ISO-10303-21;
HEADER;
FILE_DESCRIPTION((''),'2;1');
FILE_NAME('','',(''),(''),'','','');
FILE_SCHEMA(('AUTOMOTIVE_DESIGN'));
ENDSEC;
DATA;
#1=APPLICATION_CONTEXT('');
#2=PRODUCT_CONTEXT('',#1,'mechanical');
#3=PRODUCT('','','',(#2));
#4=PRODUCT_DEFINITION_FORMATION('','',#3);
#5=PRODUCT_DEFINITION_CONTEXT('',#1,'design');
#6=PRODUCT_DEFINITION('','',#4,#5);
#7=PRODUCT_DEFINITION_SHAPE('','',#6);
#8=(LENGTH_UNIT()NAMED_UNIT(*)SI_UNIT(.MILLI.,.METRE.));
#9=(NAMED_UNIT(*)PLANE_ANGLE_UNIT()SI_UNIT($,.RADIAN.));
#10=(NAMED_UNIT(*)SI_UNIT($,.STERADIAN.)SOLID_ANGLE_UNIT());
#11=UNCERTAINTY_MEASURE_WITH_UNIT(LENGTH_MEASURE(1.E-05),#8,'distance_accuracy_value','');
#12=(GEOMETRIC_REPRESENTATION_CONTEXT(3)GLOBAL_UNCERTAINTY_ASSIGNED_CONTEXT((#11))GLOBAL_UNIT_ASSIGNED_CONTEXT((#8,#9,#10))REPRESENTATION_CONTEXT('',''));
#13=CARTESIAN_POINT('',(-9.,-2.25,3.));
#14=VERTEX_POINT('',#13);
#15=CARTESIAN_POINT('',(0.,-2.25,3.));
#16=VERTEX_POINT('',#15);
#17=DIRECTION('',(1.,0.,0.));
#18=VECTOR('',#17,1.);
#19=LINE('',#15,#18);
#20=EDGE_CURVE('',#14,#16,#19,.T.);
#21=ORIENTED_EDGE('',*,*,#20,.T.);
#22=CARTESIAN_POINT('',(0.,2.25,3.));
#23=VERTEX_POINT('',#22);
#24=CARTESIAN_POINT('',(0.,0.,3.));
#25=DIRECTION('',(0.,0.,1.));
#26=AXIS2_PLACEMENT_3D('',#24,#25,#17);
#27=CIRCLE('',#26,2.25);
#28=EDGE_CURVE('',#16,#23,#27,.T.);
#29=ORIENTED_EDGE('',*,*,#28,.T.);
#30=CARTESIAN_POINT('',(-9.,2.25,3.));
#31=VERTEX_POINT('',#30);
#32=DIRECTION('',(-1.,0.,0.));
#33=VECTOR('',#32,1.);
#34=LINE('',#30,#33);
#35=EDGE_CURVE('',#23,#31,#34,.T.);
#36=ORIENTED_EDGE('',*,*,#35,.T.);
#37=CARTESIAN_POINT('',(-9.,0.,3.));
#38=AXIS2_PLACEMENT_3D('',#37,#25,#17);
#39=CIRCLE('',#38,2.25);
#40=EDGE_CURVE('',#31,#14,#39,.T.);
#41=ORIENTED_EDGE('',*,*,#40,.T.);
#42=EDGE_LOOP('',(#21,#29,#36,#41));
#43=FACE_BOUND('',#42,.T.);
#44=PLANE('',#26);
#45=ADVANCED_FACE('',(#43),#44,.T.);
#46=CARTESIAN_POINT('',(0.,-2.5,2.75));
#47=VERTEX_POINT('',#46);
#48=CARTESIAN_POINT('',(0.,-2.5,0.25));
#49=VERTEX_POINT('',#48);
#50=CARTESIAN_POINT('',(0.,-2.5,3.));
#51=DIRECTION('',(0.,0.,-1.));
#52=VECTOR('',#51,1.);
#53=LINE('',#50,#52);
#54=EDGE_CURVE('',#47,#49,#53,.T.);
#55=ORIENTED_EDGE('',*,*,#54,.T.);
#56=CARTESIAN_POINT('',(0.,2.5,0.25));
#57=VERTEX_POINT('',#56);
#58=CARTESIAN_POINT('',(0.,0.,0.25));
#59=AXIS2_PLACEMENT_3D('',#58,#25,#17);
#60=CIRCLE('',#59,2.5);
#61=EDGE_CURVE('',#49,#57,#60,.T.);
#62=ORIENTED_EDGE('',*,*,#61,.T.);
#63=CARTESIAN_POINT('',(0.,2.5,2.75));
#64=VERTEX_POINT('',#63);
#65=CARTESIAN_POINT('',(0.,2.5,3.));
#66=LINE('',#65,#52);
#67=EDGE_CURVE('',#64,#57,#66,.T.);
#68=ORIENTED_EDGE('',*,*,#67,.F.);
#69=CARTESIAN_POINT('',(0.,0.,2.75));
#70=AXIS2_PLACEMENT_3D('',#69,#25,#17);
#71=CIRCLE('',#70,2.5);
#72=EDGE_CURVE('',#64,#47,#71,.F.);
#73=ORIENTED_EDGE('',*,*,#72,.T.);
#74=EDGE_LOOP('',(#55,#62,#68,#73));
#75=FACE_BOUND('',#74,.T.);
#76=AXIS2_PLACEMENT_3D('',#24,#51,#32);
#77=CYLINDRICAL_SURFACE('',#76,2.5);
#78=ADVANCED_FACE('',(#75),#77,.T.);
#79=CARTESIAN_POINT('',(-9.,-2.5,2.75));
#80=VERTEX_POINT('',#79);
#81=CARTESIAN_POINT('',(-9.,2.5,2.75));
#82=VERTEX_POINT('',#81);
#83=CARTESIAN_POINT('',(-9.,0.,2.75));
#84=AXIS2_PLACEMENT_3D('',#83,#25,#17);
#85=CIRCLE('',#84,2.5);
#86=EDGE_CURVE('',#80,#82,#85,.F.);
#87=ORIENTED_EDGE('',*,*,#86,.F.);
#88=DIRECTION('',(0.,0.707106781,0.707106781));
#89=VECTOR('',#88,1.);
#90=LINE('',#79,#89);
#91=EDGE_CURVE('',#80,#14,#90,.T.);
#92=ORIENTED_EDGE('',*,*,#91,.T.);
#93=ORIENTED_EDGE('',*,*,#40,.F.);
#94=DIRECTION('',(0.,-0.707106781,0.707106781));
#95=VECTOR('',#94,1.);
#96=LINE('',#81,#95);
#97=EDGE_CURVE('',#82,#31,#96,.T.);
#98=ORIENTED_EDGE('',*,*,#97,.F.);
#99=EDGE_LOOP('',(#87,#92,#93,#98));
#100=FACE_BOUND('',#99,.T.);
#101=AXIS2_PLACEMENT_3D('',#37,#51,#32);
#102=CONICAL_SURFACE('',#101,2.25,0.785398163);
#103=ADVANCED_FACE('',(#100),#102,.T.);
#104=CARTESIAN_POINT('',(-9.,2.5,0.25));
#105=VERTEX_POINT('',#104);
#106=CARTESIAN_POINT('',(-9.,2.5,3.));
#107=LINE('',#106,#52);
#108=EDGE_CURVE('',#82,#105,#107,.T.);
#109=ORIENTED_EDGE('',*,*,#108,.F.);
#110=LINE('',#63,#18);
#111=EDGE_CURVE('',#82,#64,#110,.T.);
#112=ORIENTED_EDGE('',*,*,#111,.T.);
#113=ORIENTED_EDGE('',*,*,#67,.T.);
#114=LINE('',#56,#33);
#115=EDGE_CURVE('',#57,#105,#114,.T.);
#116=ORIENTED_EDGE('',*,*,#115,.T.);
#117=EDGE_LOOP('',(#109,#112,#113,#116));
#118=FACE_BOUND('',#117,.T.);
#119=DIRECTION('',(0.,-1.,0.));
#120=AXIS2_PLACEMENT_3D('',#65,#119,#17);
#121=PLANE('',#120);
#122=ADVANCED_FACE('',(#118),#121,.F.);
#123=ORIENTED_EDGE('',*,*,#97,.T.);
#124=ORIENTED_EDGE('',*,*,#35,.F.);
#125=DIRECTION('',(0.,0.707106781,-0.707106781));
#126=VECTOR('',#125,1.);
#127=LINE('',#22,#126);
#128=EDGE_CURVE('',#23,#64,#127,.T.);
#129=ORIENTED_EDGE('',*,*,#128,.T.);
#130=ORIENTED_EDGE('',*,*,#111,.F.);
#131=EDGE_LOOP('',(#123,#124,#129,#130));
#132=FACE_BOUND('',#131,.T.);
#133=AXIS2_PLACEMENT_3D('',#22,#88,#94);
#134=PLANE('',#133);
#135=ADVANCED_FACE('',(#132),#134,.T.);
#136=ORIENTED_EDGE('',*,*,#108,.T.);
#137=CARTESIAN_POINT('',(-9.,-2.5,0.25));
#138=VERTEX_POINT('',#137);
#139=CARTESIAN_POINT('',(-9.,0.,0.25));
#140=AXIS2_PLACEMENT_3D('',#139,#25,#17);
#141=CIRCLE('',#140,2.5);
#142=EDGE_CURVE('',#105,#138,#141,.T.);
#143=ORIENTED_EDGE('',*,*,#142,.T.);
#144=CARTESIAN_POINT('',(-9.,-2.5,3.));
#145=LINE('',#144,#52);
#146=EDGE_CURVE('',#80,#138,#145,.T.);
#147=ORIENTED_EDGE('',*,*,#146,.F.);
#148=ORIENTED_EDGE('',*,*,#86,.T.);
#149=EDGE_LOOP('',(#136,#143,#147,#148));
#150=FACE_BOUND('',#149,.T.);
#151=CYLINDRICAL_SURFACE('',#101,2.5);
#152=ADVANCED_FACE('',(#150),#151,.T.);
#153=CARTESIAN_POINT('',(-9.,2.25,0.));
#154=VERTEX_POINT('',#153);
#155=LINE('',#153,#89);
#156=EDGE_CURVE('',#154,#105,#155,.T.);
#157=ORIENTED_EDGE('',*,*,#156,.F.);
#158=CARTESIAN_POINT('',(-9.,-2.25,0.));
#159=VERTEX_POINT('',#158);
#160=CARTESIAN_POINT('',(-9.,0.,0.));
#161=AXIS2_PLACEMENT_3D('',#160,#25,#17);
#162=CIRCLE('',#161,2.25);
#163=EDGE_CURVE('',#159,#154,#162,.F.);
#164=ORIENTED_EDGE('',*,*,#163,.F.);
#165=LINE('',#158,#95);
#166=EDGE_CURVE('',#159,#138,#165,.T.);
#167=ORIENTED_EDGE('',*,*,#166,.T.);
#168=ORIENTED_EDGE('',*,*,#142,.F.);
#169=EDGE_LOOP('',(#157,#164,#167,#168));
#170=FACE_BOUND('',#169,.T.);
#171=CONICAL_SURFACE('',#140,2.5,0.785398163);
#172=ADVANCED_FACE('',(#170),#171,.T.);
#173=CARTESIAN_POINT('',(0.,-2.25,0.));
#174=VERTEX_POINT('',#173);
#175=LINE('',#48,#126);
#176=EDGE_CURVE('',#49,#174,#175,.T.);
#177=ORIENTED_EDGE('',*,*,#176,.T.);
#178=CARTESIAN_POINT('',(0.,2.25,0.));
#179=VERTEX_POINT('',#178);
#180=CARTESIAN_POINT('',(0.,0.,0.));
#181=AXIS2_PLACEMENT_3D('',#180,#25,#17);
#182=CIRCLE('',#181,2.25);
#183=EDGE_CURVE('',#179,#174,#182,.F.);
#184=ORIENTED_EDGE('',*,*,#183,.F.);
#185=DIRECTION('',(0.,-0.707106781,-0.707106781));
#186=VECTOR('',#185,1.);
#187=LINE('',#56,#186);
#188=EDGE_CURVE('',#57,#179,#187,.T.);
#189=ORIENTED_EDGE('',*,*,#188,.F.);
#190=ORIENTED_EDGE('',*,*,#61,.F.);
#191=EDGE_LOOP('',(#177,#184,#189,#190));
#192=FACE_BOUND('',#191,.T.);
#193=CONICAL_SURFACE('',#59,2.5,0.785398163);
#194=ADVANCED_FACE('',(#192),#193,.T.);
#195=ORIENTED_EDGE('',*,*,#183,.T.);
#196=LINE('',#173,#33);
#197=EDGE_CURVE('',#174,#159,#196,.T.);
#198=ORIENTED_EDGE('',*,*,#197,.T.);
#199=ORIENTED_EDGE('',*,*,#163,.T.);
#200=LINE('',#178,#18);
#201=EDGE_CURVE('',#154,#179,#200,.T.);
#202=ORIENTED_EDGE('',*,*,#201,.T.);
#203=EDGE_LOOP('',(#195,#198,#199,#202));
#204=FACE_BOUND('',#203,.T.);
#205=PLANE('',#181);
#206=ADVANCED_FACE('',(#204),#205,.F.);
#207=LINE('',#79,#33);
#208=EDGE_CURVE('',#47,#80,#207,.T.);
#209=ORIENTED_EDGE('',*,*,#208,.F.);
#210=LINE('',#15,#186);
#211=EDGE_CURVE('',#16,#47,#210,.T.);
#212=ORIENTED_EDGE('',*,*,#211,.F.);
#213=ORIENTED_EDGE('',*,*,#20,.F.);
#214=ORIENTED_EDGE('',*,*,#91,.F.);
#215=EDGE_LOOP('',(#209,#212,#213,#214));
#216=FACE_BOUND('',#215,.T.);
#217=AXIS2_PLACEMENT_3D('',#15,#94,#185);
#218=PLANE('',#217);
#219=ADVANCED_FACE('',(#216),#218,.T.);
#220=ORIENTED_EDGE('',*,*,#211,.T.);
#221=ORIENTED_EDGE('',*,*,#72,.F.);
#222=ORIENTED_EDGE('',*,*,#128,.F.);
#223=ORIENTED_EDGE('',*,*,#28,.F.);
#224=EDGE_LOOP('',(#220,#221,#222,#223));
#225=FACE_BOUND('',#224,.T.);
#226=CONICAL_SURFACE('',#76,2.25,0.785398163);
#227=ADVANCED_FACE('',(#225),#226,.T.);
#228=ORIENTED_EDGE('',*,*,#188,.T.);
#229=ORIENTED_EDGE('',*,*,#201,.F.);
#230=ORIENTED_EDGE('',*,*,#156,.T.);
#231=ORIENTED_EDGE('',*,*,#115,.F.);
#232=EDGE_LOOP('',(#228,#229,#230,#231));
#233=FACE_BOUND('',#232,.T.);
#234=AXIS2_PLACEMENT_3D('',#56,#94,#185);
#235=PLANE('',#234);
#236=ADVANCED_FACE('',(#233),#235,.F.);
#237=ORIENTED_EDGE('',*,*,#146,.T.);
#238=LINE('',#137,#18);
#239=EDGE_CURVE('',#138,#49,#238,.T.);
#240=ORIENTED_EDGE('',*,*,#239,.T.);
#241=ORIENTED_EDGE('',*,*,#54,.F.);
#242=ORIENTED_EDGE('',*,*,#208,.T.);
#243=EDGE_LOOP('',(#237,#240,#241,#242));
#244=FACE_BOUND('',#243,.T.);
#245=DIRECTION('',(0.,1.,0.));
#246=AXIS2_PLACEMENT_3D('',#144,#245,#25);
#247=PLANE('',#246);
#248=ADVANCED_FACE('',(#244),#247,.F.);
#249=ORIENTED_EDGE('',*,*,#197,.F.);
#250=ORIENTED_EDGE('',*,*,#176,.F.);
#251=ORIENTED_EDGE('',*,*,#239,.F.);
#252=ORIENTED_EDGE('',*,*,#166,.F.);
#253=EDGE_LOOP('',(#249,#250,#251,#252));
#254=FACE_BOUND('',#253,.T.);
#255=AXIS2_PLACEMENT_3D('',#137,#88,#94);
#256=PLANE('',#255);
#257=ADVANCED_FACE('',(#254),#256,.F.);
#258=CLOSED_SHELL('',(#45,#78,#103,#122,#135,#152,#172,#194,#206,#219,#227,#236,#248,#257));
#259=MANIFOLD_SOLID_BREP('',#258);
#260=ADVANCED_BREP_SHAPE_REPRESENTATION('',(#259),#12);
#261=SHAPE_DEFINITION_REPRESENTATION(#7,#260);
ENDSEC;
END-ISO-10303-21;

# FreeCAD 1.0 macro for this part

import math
import FreeCAD as App
import Part
import Sketcher

V = App.Vector


def edges_at(feature, points):
    """Names of the edges that pass closest to the given points."""
    edges = feature.Shape.Edges
    near = lambda p: min(range(len(edges)), key=lambda i: edges[i].distToShape(Part.Vertex(*p))[0])
    return sorted({f"Edge{near(p) + 1}" for p in points})

doc = App.newDocument("Part")
params = doc.addObject("Spreadsheet::Sheet", "Params")
for row, (alias, value) in enumerate([
    ("sketch1_radius", "2.5 mm"),
    ("sketch1_width", "9 mm"),
    ("pad1_length", "3 mm"),
    ("chamfer_size", "0.25 mm"),
], start=1):
    params.set(f"A{row}", alias)
    params.set(f"B{row}", "=" + value)
    params.setAlias(f"B{row}", alias)

body = doc.addObject("PartDesign::Body", "Body")

sketch1 = body.newObject("Sketcher::SketchObject", "Sketch")
sketch1.AttachmentSupport = (doc.getObject("XY_Plane"), [""])
sketch1.MapMode = "FlatFace"
sketch1.addGeometry([
    Part.LineSegment(V(0, 2.5, 0), V(-9, 2.5, 0)),
    Part.ArcOfCircle(Part.Circle(V(-9, 0, 0), V(0, 0, 1), 2.5), math.radians(90), math.radians(270)),
    Part.LineSegment(V(-9, -2.5, 0), V(0, -2.5, 0)),
    Part.ArcOfCircle(Part.Circle(V(0, 0, 0), V(0, 0, 1), 2.5), math.radians(-90), math.radians(90)),
], False)
sketch1.addConstraint([
    Sketcher.Constraint("Tangent", 0, 2, 1, 1),
    Sketcher.Constraint("Tangent", 1, 2, 2, 1),
    Sketcher.Constraint("Tangent", 2, 2, 3, 1),
    Sketcher.Constraint("Tangent", 3, 2, 0, 1),
    Sketcher.Constraint("Horizontal", 0),
    Sketcher.Constraint("Horizontal", 2),
    Sketcher.Constraint("Coincident", 3, 3, -1, 1),
    Sketcher.Constraint("Radius", 1, 2.5),
    Sketcher.Constraint("DistanceX", 0, 2, 0, 1, 9.0),
])
sketch1.setExpression("Constraints[7]", "Params.sketch1_radius")
sketch1.setExpression("Constraints[8]", "Params.sketch1_width")
pad1 = body.newObject("PartDesign::Pad", "Pad")
pad1.Profile = sketch1
pad1.setExpression("Length", "Params.pad1_length")
doc.recompute()

chamfer = body.newObject("PartDesign::Chamfer", "Chamfer")
chamfer.Base = (pad1, edges_at(pad1, [
    (-11.5, 0, 3),
    (-4.5, -2.5, 3),
    (2.5, 0, 3),
    (-4.5, -2.5, 0),
    (-11.5, 0, 0),
    (-4.5, 2.5, 0),
    (2.5, 0, 0),
    (-4.5, 2.5, 3),
]))
chamfer.setExpression("Size", "Params.chamfer_size")

doc.recompute()
